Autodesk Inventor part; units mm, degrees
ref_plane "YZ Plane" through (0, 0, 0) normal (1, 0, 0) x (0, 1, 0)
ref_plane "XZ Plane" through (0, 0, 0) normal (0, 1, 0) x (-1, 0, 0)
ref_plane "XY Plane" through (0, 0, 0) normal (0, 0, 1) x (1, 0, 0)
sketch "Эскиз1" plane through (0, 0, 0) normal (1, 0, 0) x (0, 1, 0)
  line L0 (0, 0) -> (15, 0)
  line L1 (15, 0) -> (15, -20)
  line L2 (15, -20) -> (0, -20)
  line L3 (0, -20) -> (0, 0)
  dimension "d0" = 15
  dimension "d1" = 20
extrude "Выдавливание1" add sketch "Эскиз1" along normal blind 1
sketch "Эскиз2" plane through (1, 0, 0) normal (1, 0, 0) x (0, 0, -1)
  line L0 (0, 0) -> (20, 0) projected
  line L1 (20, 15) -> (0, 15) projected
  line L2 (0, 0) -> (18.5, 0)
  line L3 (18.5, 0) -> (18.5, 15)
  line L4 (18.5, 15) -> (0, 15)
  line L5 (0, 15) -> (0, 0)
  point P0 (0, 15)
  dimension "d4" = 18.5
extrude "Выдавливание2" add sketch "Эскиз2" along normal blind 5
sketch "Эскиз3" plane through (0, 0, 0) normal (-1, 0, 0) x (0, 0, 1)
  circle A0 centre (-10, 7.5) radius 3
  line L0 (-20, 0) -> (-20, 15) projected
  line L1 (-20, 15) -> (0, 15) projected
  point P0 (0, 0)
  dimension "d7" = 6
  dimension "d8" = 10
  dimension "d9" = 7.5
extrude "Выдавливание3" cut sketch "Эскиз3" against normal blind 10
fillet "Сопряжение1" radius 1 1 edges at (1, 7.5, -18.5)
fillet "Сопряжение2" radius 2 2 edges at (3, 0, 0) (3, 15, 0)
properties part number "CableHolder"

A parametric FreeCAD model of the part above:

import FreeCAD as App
import Part
import Sketcher
from FreeCAD import Vector
Q = App.Units.Quantity


def edges_at(feature, points):
    """Names of the edges that pass closest to the given points."""
    edges = feature.Shape.Edges
    near = lambda p: min(range(len(edges)), key=lambda i: edges[i].distToShape(Part.Vertex(*p))[0])
    return sorted({f"Edge{near(p) + 1}" for p in points})

doc = App.newDocument("Part")
body = doc.addObject("PartDesign::Body", "Body")

sketch1 = body.newObject("Sketcher::SketchObject", "Sketch")
sketch1.AttachmentSupport = (doc.getObject("YZ_Plane"), [""])
sketch1.MapMode = "FlatFace"
sketch1.addGeometry(Part.LineSegment(Vector(15, 0, 0), Vector(0, 0, 0)), False)
sketch1.addGeometry(Part.LineSegment(Vector(0, 0, 0), Vector(0, -20, 0)), False)
sketch1.addGeometry(Part.LineSegment(Vector(0, -20, 0), Vector(15, -20, 0)), False)
sketch1.addGeometry(Part.LineSegment(Vector(15, -20, 0), Vector(15, 0, 0)), False)
sketch1.addConstraint(Sketcher.Constraint("Coincident", 0, 2, 1, 1))
sketch1.addConstraint(Sketcher.Constraint("Coincident", 1, 2, 2, 1))
sketch1.addConstraint(Sketcher.Constraint("Coincident", 2, 2, 3, 1))
sketch1.addConstraint(Sketcher.Constraint("Coincident", 3, 2, 0, 1))
sketch1.addConstraint(Sketcher.Constraint("Horizontal", 0))
sketch1.addConstraint(Sketcher.Constraint("Vertical", 1))
sketch1.addConstraint(Sketcher.Constraint("Horizontal", 2))
sketch1.addConstraint(Sketcher.Constraint("Vertical", 3))
sketch1.addConstraint(Sketcher.Constraint("Coincident", 0, 2, -1, 1))
sketch1.addConstraint(Sketcher.Constraint("DistanceX", 0, 2, 0, 1, Q("15 mm")))
sketch1.addConstraint(Sketcher.Constraint("DistanceY", 1, 2, 1, 1, Q("20 mm")))
pad1 = body.newObject("PartDesign::Pad", "Pad")
pad1.Profile = sketch1
pad1.Length = 1

sketch2 = body.newObject("Sketcher::SketchObject", "Sketch001")
sketch2.AttachmentSupport = (doc.getObject("YZ_Plane"), [""])
sketch2.MapMode = "FlatFace"
sketch2.AttachmentOffset = App.Placement(Vector(0, 0, 1), App.Rotation())
sketch2.addGeometry(Part.LineSegment(Vector(15, 0, 0), Vector(0, 0, 0)), False)
sketch2.addGeometry(Part.LineSegment(Vector(0, 0, 0), Vector(0, -18.5, 0)), False)
sketch2.addGeometry(Part.LineSegment(Vector(0, -18.5, 0), Vector(15, -18.5, 0)), False)
sketch2.addGeometry(Part.LineSegment(Vector(15, -18.5, 0), Vector(15, 0, 0)), False)
sketch2.addConstraint(Sketcher.Constraint("Coincident", 0, 2, 1, 1))
sketch2.addConstraint(Sketcher.Constraint("Coincident", 1, 2, 2, 1))
sketch2.addConstraint(Sketcher.Constraint("Coincident", 2, 2, 3, 1))
sketch2.addConstraint(Sketcher.Constraint("Coincident", 3, 2, 0, 1))
sketch2.addConstraint(Sketcher.Constraint("Horizontal", 0))
sketch2.addConstraint(Sketcher.Constraint("Vertical", 1))
sketch2.addConstraint(Sketcher.Constraint("Horizontal", 2))
sketch2.addConstraint(Sketcher.Constraint("Vertical", 3))
sketch2.addConstraint(Sketcher.Constraint("Coincident", 0, 2, -1, 1))
sketch2.addConstraint(Sketcher.Constraint("DistanceY", 1, 2, 1, 1, Q("18.5 mm")))
sketch2.addConstraint(Sketcher.Constraint("DistanceX", 0, 2, 0, 1, Q("15 mm")))
pad2 = body.newObject("PartDesign::Pad", "Pad001")
pad2.Profile = sketch2
pad2.Length = 5

sketch3 = body.newObject("Sketcher::SketchObject", "Sketch002")
sketch3.AttachmentSupport = (doc.getObject("YZ_Plane"), [""])
sketch3.MapMode = "FlatFace"
sketch3.addGeometry(Part.Circle(Vector(7.5, -10, 0), Vector(0, 0, 1), 3), False)
sketch3.addConstraint(Sketcher.Constraint("Diameter", 0, Q("6 mm")))
sketch3.addConstraint(Sketcher.Constraint("DistanceY", 0, 3, -1, 1, Q("10 mm")))
sketch3.addConstraint(Sketcher.Constraint("DistanceX", -1, 1, 0, 3, Q("7.5 mm")))
pocket1 = body.newObject("PartDesign::Pocket", "Pocket")
pocket1.Profile = sketch3
pocket1.Length = 10
pocket1.Reversed = True
doc.recompute()

fillet = body.newObject("PartDesign::Fillet", "Fillet")
fillet.Base = (pocket1, edges_at(pocket1, [(1, 7.5, -18.5)]))
fillet.Radius = 1
doc.recompute()

fillet2 = body.newObject("PartDesign::Fillet", "Fillet001")
fillet2.Base = (fillet, edges_at(fillet, [(3, 0, 0), (3, 15, 0)]))
fillet2.Radius = 2

doc.recompute()
